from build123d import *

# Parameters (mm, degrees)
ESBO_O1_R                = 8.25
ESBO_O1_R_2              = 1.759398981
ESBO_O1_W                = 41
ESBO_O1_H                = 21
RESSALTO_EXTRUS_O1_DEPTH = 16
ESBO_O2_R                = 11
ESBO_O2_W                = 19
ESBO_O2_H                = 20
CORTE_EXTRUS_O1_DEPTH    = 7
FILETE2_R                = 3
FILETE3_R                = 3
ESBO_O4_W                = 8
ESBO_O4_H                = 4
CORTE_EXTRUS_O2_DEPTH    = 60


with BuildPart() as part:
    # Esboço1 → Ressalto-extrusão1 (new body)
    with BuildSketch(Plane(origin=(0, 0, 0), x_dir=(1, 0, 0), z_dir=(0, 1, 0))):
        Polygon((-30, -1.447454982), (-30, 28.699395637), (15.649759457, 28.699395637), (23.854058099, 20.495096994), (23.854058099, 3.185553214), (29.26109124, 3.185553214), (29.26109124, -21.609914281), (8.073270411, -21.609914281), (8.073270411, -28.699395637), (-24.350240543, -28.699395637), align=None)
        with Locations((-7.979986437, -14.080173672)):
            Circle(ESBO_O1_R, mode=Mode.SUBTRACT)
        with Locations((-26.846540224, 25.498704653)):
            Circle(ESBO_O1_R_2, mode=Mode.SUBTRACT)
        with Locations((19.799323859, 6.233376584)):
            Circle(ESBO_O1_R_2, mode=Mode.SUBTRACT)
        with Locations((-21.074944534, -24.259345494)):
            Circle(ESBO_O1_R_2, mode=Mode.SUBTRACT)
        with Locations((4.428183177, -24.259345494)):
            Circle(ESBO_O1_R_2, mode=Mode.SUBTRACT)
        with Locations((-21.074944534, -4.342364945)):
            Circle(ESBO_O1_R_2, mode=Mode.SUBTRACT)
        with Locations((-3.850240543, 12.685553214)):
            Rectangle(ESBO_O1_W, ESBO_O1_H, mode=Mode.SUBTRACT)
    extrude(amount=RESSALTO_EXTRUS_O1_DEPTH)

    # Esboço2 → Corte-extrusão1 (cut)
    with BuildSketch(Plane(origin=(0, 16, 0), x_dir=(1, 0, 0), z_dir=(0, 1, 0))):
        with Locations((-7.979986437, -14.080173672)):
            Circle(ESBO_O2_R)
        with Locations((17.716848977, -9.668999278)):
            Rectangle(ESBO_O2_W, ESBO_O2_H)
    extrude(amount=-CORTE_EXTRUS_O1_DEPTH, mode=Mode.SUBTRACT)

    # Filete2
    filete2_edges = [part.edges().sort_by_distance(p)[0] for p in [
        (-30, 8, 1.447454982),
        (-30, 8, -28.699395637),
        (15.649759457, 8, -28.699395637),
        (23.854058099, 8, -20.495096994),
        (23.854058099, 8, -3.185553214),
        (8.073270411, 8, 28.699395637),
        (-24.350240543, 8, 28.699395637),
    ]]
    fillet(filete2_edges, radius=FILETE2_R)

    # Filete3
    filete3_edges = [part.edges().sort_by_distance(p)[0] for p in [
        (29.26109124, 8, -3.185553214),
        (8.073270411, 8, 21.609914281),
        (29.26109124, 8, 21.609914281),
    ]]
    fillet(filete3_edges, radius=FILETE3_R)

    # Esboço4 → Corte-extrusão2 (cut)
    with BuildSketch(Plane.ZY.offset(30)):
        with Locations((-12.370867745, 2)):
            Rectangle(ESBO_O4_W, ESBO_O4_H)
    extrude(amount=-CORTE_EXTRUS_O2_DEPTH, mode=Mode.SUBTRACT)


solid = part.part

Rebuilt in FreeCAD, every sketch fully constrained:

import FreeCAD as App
import Part
import Sketcher
from FreeCAD import Vector
Q = App.Units.Quantity


def edges_at(feature, points):
    """Names of the edges that pass closest to the given points."""
    edges = feature.Shape.Edges
    near = lambda p: min(range(len(edges)), key=lambda i: edges[i].distToShape(Part.Vertex(*p))[0])
    return sorted({f"Edge{near(p) + 1}" for p in points})

doc = App.newDocument("Part")
params = doc.addObject("Spreadsheet::Sheet", "Params")
for row, (alias, value) in enumerate([
    ("sketch1_diameter", "16.5 mm"),
    ("sketch1_width", "41 mm"),
    ("sketch1_height", "21 mm"),
    ("pad1_length", "16 mm"),
    ("sketch2_diameter", "22 mm"),
    ("sketch2_width", "19 mm"),
    ("sketch2_height", "20 mm"),
    ("pocket1_length", "7 mm"),
    ("fillet_radius", "3 mm"),
    ("fillet2_radius", "3 mm"),
    ("sketch3_width", "4 mm"),
    ("sketch3_height", "8 mm"),
    ("pocket2_length", "60 mm"),
], start=1):
    params.set(f"A{row}", alias)
    params.set(f"B{row}", "=" + value)
    params.setAlias(f"B{row}", alias)

body = doc.addObject("PartDesign::Body", "Body")

# Sketch on XZ plane
sketch1 = body.newObject("Sketcher::SketchObject", "Sketch")
sketch1.AttachmentSupport = (doc.getObject("XZ_Plane"), [""])
sketch1.MapMode = "FlatFace"
sketch1.addGeometry([
    Part.LineSegment(Vector(-30, -28.699396, 0), Vector(-30, 1.447455, 0)),  # 0
    Part.LineSegment(Vector(-30, 1.447455, 0), Vector(-24.350241, 28.699396, 0)),  # 1
    Part.LineSegment(Vector(-24.350241, 28.699396, 0), Vector(8.07327, 28.699396, 0)),  # 2
    Part.LineSegment(Vector(8.07327, 28.699396, 0), Vector(8.07327, 21.609914, 0)),  # 3
    Part.LineSegment(Vector(8.07327, 21.609914, 0), Vector(29.261091, 21.609914, 0)),  # 4
    Part.LineSegment(Vector(29.261091, 21.609914, 0), Vector(29.261091, -3.185553, 0)),  # 5
    Part.LineSegment(Vector(29.261091, -3.185553, 0), Vector(23.854058, -3.185553, 0)),  # 6
    Part.LineSegment(Vector(23.854058, -3.185553, 0), Vector(23.854058, -20.495097, 0)),  # 7
    Part.LineSegment(Vector(23.854058, -20.495097, 0), Vector(15.649759, -28.699396, 0)),  # 8
    Part.LineSegment(Vector(15.649759, -28.699396, 0), Vector(-30, -28.699396, 0)),  # 9
    Part.Circle(Vector(4.428183, 24.259345, 0), Vector(0, 0, 1), 1.759399),  # 10
    Part.Circle(Vector(-7.979986, 14.080174, 0), Vector(0, 0, 1), 8.25),  # 11
    Part.Circle(Vector(-21.074945, 24.259345, 0), Vector(0, 0, 1), 1.759399),  # 12
    Part.Circle(Vector(-21.074945, 4.342365, 0), Vector(0, 0, 1), 1.759399),  # 13
    Part.Circle(Vector(19.799324, -6.233377, 0), Vector(0, 0, 1), 1.759399),  # 14
    Part.LineSegment(Vector(-24.350241, -2.185553, 0), Vector(-24.350241, -23.185553, 0)),  # 15
    Part.LineSegment(Vector(-24.350241, -23.185553, 0), Vector(16.649759, -23.185553, 0)),  # 16
    Part.LineSegment(Vector(16.649759, -23.185553, 0), Vector(16.649759, -2.185553, 0)),  # 17
    Part.LineSegment(Vector(16.649759, -2.185553, 0), Vector(-24.350241, -2.185553, 0)),  # 18
    Part.Circle(Vector(-26.84654, -25.498705, 0), Vector(0, 0, 1), 1.759399),  # 19
], False)
sketch1.addConstraint([
    Sketcher.Constraint("Coincident", 0, 2, 1, 1),
    Sketcher.Constraint("Coincident", 1, 2, 2, 1),
    Sketcher.Constraint("Coincident", 2, 2, 3, 1),
    Sketcher.Constraint("Coincident", 3, 2, 4, 1),
    Sketcher.Constraint("Coincident", 4, 2, 5, 1),
    Sketcher.Constraint("Coincident", 5, 2, 6, 1),
    Sketcher.Constraint("Coincident", 6, 2, 7, 1),
    Sketcher.Constraint("Coincident", 7, 2, 8, 1),
    Sketcher.Constraint("Coincident", 8, 2, 9, 1),
    Sketcher.Constraint("Coincident", 9, 2, 0, 1),
    Sketcher.Constraint("Coincident", 15, 2, 16, 1),
    Sketcher.Constraint("Coincident", 16, 2, 17, 1),
    Sketcher.Constraint("Coincident", 17, 2, 18, 1),
    Sketcher.Constraint("Coincident", 18, 2, 15, 1),
    Sketcher.Constraint("Vertical", 0),
    Sketcher.Constraint("Horizontal", 2),
    Sketcher.Constraint("Vertical", 3),
    Sketcher.Constraint("Horizontal", 4),
    Sketcher.Constraint("Vertical", 5),
    Sketcher.Constraint("Horizontal", 6),
    Sketcher.Constraint("Vertical", 7),
    Sketcher.Constraint("Horizontal", 9),
    Sketcher.Constraint("Vertical", 15),
    Sketcher.Constraint("Horizontal", 16),
    Sketcher.Constraint("Vertical", 17),
    Sketcher.Constraint("Horizontal", 18),
    Sketcher.Constraint("Equal", 10, 12),
    Sketcher.Constraint("Equal", 12, 13),
    Sketcher.Constraint("Equal", 13, 14),
    Sketcher.Constraint("Equal", 14, 19),
    Sketcher.Constraint("Horizontal", 10, 3, 12, 3),
    Sketcher.Constraint("Vertical", 12, 3, 13, 3),
    Sketcher.Constraint("Vertical", 1, 2, 15, 2),
    Sketcher.Constraint("Diameter", 11, Q("16.5 mm")),
    Sketcher.Constraint("DistanceX", 16, 1, 16, 2, Q("41 mm")),
    Sketcher.Constraint("DistanceY", 15, 2, 15, 1, Q("21 mm")),
    Sketcher.Constraint("Angle", 8, Q("-135 deg")),
    Sketcher.Constraint("DistanceX", 0, 2, -1, 1, Q("30 mm")),
    Sketcher.Constraint("DistanceX", 15, 2, 8, 2, Q("40 mm")),
    Sketcher.Constraint("DistanceY", 16, 2, 6, 2, Q("20 mm")),
    Sketcher.Constraint("Diameter", 10, Q("3.518798 mm")),
    Sketcher.Constraint("DistanceX", 2, 1, 2, 2, Q("32.423511 mm")),
    Sketcher.Constraint("DistanceX", 4, 1, 4, 2, Q("21.187821 mm")),
    Sketcher.Constraint("DistanceX", 9, 2, 9, 1, Q("45.649759 mm")),
    Sketcher.Constraint("DistanceY", 0, 1, 0, 2, Q("30.146851 mm")),
    Sketcher.Constraint("DistanceY", 3, 2, 3, 1, Q("7.089481 mm")),
    Sketcher.Constraint("DistanceY", 5, 2, 10, 3, Q("27.444899 mm")),
    Sketcher.Constraint("DistanceX", 8, 2, 7, 2, Q("8.204299 mm")),
    Sketcher.Constraint("DistanceX", 19, 3, 8, 2, Q("42.4963 mm")),
    Sketcher.Constraint("DistanceY", 5, 2, 5, 1, Q("24.795467 mm")),
    Sketcher.Constraint("DistanceY", 7, 2, 7, 1, Q("17.309544 mm")),
    Sketcher.Constraint("DistanceX", 11, 3, 10, 3, Q("12.40817 mm")),
    Sketcher.Constraint("DistanceY", 11, 3, 10, 3, Q("10.179172 mm")),
    Sketcher.Constraint("DistanceX", 12, 3, 11, 3, Q("13.094958 mm")),
    Sketcher.Constraint("DistanceY", 13, 3, 11, 3, Q("9.737809 mm")),
    Sketcher.Constraint("DistanceX", 10, 3, 14, 3, Q("15.371141 mm")),
    Sketcher.Constraint("DistanceY", 14, 3, 11, 3, Q("20.31355 mm")),
    Sketcher.Constraint("DistanceY", 19, 3, 13, 3, Q("29.84107 mm")),
    Sketcher.Constraint("DistanceX", 10, 3, 4, 2, Q("24.832908 mm")),
    Sketcher.Constraint("DistanceY", -1, 1, 10, 3, Q("24.259345 mm")),
])
sketch1.setExpression("Constraints[33]", "Params.sketch1_diameter")
sketch1.setExpression("Constraints[34]", "Params.sketch1_width")
sketch1.setExpression("Constraints[35]", "Params.sketch1_height")
pad1 = body.newObject("PartDesign::Pad", "Pad")
pad1.Profile = sketch1
pad1.setExpression("Length", "Params.pad1_length")
pad1.Reversed = True

# Sketch on XZ plane
sketch2 = body.newObject("Sketcher::SketchObject", "Sketch001")
sketch2.AttachmentSupport = (doc.getObject("XZ_Plane"), [""])
sketch2.MapMode = "FlatFace"
sketch2.AttachmentOffset = App.Placement(Vector(0, 0, -16), App.Rotation())
sketch2.addGeometry([
    Part.Circle(Vector(-7.979986, 14.080174, 0), Vector(0, 0, 1), 11),  # 0
    Part.LineSegment(Vector(8.216849, -0.331001, 0), Vector(8.216849, 19.668999, 0)),  # 1
    Part.LineSegment(Vector(8.216849, 19.668999, 0), Vector(27.216849, 19.668999, 0)),  # 2
    Part.LineSegment(Vector(27.216849, 19.668999, 0), Vector(27.216849, -0.331001, 0)),  # 3
    Part.LineSegment(Vector(27.216849, -0.331001, 0), Vector(8.216849, -0.331001, 0)),  # 4
], False)
sketch2.addConstraint([
    Sketcher.Constraint("Coincident", 1, 2, 2, 1),
    Sketcher.Constraint("Coincident", 2, 2, 3, 1),
    Sketcher.Constraint("Coincident", 3, 2, 4, 1),
    Sketcher.Constraint("Coincident", 4, 2, 1, 1),
    Sketcher.Constraint("Vertical", 1),
    Sketcher.Constraint("Horizontal", 2),
    Sketcher.Constraint("Vertical", 3),
    Sketcher.Constraint("Horizontal", 4),
    Sketcher.Constraint("Diameter", 0, Q("22 mm")),
    Sketcher.Constraint("DistanceX", 2, 1, 2, 2, Q("19 mm")),
    Sketcher.Constraint("DistanceY", 1, 1, 1, 2, Q("20 mm")),
    Sketcher.Constraint("DistanceY", -1, 1, 1, 2, Q("19.668999 mm")),
    Sketcher.Constraint("DistanceX", -1, 1, 1, 2, Q("8.216849 mm")),
    Sketcher.Constraint("DistanceX", 0, 3, -1, 1, Q("7.979986 mm")),
    Sketcher.Constraint("DistanceY", -1, 1, 0, 3, Q("14.080174 mm")),
])
sketch2.setExpression("Constraints[8]", "Params.sketch2_diameter")
sketch2.setExpression("Constraints[9]", "Params.sketch2_width")
sketch2.setExpression("Constraints[10]", "Params.sketch2_height")
pocket1 = body.newObject("PartDesign::Pocket", "Pocket")
pocket1.Profile = sketch2
pocket1.setExpression("Length", "Params.pocket1_length")
pocket1.Reversed = True
doc.recompute()

fillet = body.newObject("PartDesign::Fillet", "Fillet")
fillet.Base = (pocket1, edges_at(pocket1, [
    (-30, 8, 1.447),
    (-30, 8, -28.699),
    (15.65, 8, -28.699),
    (23.854, 8, -20.495),
    (23.854, 8, -3.186),
    (8.073, 8, 28.699),
    (-24.35, 8, 28.699),
]))
fillet.setExpression("Radius", "Params.fillet_radius")
doc.recompute()

fillet2 = body.newObject("PartDesign::Fillet", "Fillet001")
fillet2.Base = (fillet, edges_at(fillet, [(29.261, 8, -3.186), (8.073, 8, 21.61), (29.261, 8, 21.61)]))
fillet2.setExpression("Radius", "Params.fillet2_radius")

# Sketch on YZ plane
sketch3 = body.newObject("Sketcher::SketchObject", "Sketch002")
sketch3.AttachmentSupport = (doc.getObject("YZ_Plane"), [""])
sketch3.MapMode = "FlatFace"
sketch3.AttachmentOffset = App.Placement(Vector(0, 0, -30), App.Rotation())
sketch3.addGeometry([
    Part.LineSegment(Vector(4, -16.370868, 0), Vector(0, -16.370868, 0)),
    Part.LineSegment(Vector(0, -16.370868, 0), Vector(0, -8.370868, 0)),
    Part.LineSegment(Vector(0, -8.370868, 0), Vector(4, -8.370868, 0)),
    Part.LineSegment(Vector(4, -8.370868, 0), Vector(4, -16.370868, 0)),
], False)
sketch3.addConstraint([
    Sketcher.Constraint("Coincident", 0, 2, 1, 1),
    Sketcher.Constraint("Coincident", 1, 2, 2, 1),
    Sketcher.Constraint("Coincident", 2, 2, 3, 1),
    Sketcher.Constraint("Coincident", 3, 2, 0, 1),
    Sketcher.Constraint("Horizontal", 0),
    Sketcher.Constraint("Vertical", 1),
    Sketcher.Constraint("Horizontal", 2),
    Sketcher.Constraint("Vertical", 3),
    Sketcher.Constraint("PointOnObject", 0, 2, -2),
    Sketcher.Constraint("DistanceX", 0, 2, 0, 1, Q("4 mm")),
    Sketcher.Constraint("DistanceY", 1, 1, 1, 2, Q("8 mm")),
    Sketcher.Constraint("DistanceY", 0, 2, -1, 1, Q("16.370868 mm")),
])
sketch3.setExpression("Constraints[9]", "Params.sketch3_width")
sketch3.setExpression("Constraints[10]", "Params.sketch3_height")
pocket2 = body.newObject("PartDesign::Pocket", "Pocket001")
pocket2.Profile = sketch3
pocket2.setExpression("Length", "Params.pocket2_length")
pocket2.Reversed = True

doc.recompute()
